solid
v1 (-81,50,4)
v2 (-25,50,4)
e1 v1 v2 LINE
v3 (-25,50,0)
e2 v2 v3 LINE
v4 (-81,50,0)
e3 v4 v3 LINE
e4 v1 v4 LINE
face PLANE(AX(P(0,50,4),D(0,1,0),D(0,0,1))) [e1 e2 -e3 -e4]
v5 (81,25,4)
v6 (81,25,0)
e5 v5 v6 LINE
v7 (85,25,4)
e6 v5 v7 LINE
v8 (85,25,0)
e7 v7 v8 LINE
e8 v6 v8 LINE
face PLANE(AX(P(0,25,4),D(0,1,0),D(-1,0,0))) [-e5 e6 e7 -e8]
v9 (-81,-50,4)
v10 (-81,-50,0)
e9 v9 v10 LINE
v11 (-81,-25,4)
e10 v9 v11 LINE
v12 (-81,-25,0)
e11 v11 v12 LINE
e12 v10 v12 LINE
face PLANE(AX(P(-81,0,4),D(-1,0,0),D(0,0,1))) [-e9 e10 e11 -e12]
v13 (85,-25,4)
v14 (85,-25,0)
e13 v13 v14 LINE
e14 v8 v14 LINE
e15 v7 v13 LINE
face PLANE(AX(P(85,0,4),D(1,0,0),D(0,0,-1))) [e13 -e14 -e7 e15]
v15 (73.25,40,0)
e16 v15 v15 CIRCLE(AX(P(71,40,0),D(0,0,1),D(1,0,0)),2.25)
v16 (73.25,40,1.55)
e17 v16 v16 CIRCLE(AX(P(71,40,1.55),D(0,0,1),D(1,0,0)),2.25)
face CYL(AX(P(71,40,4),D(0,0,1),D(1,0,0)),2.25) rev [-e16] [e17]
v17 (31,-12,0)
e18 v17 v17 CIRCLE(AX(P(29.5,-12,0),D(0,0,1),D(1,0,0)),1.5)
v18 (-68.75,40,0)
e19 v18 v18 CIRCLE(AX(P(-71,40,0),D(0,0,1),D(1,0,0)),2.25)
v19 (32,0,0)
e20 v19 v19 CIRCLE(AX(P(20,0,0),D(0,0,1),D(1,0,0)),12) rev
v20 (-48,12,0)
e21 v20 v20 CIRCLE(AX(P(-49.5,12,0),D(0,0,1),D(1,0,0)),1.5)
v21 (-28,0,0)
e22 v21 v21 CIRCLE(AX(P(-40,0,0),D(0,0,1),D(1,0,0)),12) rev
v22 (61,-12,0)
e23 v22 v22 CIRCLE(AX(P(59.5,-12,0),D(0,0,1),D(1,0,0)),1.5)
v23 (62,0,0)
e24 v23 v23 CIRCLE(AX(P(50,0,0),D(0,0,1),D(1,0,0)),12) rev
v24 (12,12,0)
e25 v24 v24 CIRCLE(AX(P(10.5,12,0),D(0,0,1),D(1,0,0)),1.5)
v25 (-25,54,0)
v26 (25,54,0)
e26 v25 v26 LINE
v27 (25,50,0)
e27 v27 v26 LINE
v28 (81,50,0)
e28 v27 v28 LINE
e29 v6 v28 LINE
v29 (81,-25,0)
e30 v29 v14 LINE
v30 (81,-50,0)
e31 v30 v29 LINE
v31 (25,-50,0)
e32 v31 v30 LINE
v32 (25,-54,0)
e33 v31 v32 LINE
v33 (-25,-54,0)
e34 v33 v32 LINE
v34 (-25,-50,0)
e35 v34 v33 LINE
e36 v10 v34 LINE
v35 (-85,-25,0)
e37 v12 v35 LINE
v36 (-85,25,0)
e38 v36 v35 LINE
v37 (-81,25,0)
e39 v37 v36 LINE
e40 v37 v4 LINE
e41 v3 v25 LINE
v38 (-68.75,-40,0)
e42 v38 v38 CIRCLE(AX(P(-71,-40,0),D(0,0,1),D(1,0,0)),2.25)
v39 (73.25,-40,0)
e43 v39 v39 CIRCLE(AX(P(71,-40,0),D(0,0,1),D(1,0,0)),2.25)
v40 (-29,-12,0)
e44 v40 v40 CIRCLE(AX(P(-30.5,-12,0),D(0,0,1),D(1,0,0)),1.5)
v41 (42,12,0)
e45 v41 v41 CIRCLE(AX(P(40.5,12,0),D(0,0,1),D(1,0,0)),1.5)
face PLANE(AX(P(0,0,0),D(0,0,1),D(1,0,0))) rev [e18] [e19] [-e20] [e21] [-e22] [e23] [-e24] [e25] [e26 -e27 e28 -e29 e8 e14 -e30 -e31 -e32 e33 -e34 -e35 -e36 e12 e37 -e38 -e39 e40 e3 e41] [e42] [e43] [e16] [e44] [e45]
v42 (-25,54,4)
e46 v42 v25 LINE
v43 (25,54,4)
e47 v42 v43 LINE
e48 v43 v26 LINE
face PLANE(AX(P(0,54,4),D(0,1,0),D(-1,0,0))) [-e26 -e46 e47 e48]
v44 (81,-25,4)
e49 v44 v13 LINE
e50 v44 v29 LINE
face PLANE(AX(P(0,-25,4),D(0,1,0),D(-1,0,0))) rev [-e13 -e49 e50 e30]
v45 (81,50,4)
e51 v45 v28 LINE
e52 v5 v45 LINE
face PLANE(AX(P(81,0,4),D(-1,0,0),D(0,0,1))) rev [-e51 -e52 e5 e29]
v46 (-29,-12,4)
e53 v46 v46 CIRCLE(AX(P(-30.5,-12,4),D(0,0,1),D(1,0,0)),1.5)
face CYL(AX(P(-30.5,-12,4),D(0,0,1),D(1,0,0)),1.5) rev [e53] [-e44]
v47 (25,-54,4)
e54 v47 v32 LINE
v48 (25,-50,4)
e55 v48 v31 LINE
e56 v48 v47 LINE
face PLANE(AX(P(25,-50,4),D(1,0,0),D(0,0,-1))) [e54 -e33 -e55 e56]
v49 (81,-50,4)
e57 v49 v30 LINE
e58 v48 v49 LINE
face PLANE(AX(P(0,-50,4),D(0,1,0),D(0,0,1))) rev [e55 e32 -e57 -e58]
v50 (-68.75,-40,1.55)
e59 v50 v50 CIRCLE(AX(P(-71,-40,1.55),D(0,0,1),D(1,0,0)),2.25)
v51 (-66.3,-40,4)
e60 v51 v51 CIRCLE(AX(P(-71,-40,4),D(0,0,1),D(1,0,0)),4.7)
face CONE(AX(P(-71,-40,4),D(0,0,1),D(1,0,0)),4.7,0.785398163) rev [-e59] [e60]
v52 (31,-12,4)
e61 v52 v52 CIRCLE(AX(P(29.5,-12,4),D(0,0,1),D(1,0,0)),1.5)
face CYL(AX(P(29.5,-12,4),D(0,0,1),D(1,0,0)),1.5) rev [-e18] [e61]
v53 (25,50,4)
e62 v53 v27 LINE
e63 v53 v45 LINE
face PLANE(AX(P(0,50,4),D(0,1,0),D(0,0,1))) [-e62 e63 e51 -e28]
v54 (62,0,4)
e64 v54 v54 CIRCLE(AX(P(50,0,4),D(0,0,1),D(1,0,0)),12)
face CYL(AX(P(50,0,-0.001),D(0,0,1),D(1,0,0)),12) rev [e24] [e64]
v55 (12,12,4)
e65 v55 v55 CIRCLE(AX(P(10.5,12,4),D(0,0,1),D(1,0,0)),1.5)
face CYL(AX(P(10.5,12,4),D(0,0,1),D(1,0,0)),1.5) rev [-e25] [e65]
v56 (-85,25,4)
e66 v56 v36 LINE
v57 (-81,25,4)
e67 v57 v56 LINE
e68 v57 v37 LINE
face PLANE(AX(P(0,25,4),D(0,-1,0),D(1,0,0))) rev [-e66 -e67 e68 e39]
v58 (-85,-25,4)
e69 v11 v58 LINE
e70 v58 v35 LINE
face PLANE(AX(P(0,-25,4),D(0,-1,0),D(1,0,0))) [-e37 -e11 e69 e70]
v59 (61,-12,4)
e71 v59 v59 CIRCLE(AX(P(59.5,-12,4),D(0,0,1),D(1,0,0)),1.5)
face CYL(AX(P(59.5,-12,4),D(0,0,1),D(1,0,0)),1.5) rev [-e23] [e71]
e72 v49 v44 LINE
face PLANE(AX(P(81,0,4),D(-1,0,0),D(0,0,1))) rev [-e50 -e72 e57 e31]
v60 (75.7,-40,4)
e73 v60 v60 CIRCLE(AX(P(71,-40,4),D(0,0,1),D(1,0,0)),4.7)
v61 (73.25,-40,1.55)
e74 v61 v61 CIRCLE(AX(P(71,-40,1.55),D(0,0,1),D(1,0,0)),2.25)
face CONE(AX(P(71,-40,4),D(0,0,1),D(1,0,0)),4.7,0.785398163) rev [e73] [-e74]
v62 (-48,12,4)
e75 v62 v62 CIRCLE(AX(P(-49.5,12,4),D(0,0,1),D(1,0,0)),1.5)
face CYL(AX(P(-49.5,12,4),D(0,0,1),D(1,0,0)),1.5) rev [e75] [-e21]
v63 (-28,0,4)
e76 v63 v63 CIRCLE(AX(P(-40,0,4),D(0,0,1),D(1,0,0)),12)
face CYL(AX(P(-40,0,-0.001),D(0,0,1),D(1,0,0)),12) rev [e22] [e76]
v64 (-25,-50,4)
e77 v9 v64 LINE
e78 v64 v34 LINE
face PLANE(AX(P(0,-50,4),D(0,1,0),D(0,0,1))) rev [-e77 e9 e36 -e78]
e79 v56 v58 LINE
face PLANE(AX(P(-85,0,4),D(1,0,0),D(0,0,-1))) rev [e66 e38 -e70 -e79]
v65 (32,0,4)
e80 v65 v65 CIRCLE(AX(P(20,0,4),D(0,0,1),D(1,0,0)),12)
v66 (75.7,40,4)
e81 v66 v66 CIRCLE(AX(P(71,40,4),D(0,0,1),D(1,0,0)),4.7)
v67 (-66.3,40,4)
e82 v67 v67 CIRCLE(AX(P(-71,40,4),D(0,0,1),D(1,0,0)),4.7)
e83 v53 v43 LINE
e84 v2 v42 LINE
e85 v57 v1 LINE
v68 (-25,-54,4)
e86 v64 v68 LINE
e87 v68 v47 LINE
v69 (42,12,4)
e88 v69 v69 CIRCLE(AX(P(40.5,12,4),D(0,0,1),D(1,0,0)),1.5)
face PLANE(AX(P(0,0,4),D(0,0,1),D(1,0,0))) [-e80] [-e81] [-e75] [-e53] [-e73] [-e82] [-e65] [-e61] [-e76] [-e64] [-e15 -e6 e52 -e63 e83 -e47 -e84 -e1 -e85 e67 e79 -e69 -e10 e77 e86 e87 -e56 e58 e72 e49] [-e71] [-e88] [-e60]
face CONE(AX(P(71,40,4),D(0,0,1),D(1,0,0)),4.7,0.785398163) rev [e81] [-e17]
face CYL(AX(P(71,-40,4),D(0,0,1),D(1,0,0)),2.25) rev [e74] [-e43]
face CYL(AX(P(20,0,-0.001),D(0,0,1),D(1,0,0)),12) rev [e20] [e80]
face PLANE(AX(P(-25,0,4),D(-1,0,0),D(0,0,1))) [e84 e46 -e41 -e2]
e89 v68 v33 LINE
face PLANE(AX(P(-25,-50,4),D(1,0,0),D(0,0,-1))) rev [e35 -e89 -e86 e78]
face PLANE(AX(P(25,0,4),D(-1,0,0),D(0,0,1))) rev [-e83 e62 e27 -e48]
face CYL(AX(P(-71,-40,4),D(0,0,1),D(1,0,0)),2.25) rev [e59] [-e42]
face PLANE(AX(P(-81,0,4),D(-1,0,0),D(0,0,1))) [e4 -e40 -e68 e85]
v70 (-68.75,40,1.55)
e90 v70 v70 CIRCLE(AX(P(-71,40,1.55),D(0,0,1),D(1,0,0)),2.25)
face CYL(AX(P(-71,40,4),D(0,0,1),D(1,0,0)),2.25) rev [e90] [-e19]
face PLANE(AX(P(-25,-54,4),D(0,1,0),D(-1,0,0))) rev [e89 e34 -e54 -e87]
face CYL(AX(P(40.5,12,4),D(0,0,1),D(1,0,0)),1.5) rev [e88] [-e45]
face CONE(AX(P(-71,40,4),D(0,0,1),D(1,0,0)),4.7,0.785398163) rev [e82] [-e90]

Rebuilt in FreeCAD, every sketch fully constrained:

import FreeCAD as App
import Part
import Sketcher

V = App.Vector
Q = App.Units.Quantity

doc = App.newDocument("Part")
body = doc.addObject("PartDesign::Body", "Body")

sketch1 = doc.addObject("Sketcher::SketchObject", "Sketch")
body.addObject(sketch1)
sketch1.AttachmentSupport = (doc.XY_Plane, [""])
sketch1.MapMode = "FlatFace"
sketch1.addGeometry(Part.LineSegment(V(-81, -25, 0), V(-81, -50, 0)), False)
sketch1.addGeometry(Part.LineSegment(V(-81, -50, 0), V(-25, -50, 0)), False)
sketch1.addGeometry(Part.LineSegment(V(-25, -50, 0), V(-25, -54, 0)), False)
sketch1.addGeometry(Part.LineSegment(V(-25, -54, 0), V(25, -54, 0)), False)
sketch1.addGeometry(Part.LineSegment(V(25, -54, 0), V(25, -50, 0)), False)
sketch1.addGeometry(Part.LineSegment(V(25, -50, 0), V(81, -50, 0)), False)
sketch1.addGeometry(Part.LineSegment(V(81, -50, 0), V(81, -25, 0)), False)
sketch1.addGeometry(Part.LineSegment(V(81, -25, 0), V(85, -25, 0)), False)
sketch1.addGeometry(Part.LineSegment(V(85, -25, 0), V(85, 25, 0)), False)
sketch1.addGeometry(Part.LineSegment(V(85, 25, 0), V(81, 25, 0)), False)
sketch1.addGeometry(Part.LineSegment(V(81, 25, 0), V(81, 50, 0)), False)
sketch1.addGeometry(Part.LineSegment(V(81, 50, 0), V(25, 50, 0)), False)
sketch1.addGeometry(Part.LineSegment(V(25, 50, 0), V(25, 54, 0)), False)
sketch1.addGeometry(Part.LineSegment(V(25, 54, 0), V(-25, 54, 0)), False)
sketch1.addGeometry(Part.LineSegment(V(-25, 54, 0), V(-25, 50, 0)), False)
sketch1.addGeometry(Part.LineSegment(V(-25, 50, 0), V(-81, 50, 0)), False)
sketch1.addGeometry(Part.LineSegment(V(-81, 50, 0), V(-81, 25, 0)), False)
sketch1.addGeometry(Part.LineSegment(V(-81, 25, 0), V(-85, 25, 0)), False)
sketch1.addGeometry(Part.LineSegment(V(-85, 25, 0), V(-85, -25, 0)), False)
sketch1.addGeometry(Part.LineSegment(V(-85, -25, 0), V(-81, -25, 0)), False)
sketch1.addConstraint(Sketcher.Constraint("Coincident", 0, 2, 1, 1))
sketch1.addConstraint(Sketcher.Constraint("Coincident", 1, 2, 2, 1))
sketch1.addConstraint(Sketcher.Constraint("Coincident", 2, 2, 3, 1))
sketch1.addConstraint(Sketcher.Constraint("Coincident", 3, 2, 4, 1))
sketch1.addConstraint(Sketcher.Constraint("Coincident", 4, 2, 5, 1))
sketch1.addConstraint(Sketcher.Constraint("Coincident", 5, 2, 6, 1))
sketch1.addConstraint(Sketcher.Constraint("Coincident", 6, 2, 7, 1))
sketch1.addConstraint(Sketcher.Constraint("Coincident", 7, 2, 8, 1))
sketch1.addConstraint(Sketcher.Constraint("Coincident", 8, 2, 9, 1))
sketch1.addConstraint(Sketcher.Constraint("Coincident", 9, 2, 10, 1))
sketch1.addConstraint(Sketcher.Constraint("Coincident", 10, 2, 11, 1))
sketch1.addConstraint(Sketcher.Constraint("Coincident", 11, 2, 12, 1))
sketch1.addConstraint(Sketcher.Constraint("Coincident", 12, 2, 13, 1))
sketch1.addConstraint(Sketcher.Constraint("Coincident", 13, 2, 14, 1))
sketch1.addConstraint(Sketcher.Constraint("Coincident", 14, 2, 15, 1))
sketch1.addConstraint(Sketcher.Constraint("Coincident", 15, 2, 16, 1))
sketch1.addConstraint(Sketcher.Constraint("Coincident", 16, 2, 17, 1))
sketch1.addConstraint(Sketcher.Constraint("Coincident", 17, 2, 18, 1))
sketch1.addConstraint(Sketcher.Constraint("Coincident", 18, 2, 19, 1))
sketch1.addConstraint(Sketcher.Constraint("Coincident", 19, 2, 0, 1))
sketch1.addConstraint(Sketcher.Constraint("Vertical", 0))
sketch1.addConstraint(Sketcher.Constraint("Horizontal", 1))
sketch1.addConstraint(Sketcher.Constraint("Vertical", 2))
sketch1.addConstraint(Sketcher.Constraint("Horizontal", 3))
sketch1.addConstraint(Sketcher.Constraint("Vertical", 4))
sketch1.addConstraint(Sketcher.Constraint("Horizontal", 5))
sketch1.addConstraint(Sketcher.Constraint("Vertical", 6))
sketch1.addConstraint(Sketcher.Constraint("Horizontal", 7))
sketch1.addConstraint(Sketcher.Constraint("Vertical", 8))
sketch1.addConstraint(Sketcher.Constraint("Horizontal", 9))
sketch1.addConstraint(Sketcher.Constraint("Vertical", 10))
sketch1.addConstraint(Sketcher.Constraint("Horizontal", 11))
sketch1.addConstraint(Sketcher.Constraint("Vertical", 12))
sketch1.addConstraint(Sketcher.Constraint("Horizontal", 13))
sketch1.addConstraint(Sketcher.Constraint("Vertical", 14))
sketch1.addConstraint(Sketcher.Constraint("Horizontal", 15))
sketch1.addConstraint(Sketcher.Constraint("Vertical", 16))
sketch1.addConstraint(Sketcher.Constraint("Horizontal", 17))
sketch1.addConstraint(Sketcher.Constraint("Vertical", 18))
sketch1.addConstraint(Sketcher.Constraint("Horizontal", 19))
sketch1.addConstraint(Sketcher.Constraint("Symmetric", 0, 2, 10, 2, -1, 1))
sketch1.addConstraint(Sketcher.Constraint("Symmetric", 2, 2, 12, 2, -1, 1))
sketch1.addConstraint(Sketcher.Constraint("Symmetric", 4, 2, 14, 2, -1, 1))
sketch1.addConstraint(Sketcher.Constraint("Symmetric", 6, 2, 16, 2, -1, 1))
sketch1.addConstraint(Sketcher.Constraint("Symmetric", 8, 2, 18, 2, -1, 1))
sketch1.addConstraint(Sketcher.Constraint("Symmetric", 1, 2, 4, 2, -2))
sketch1.addConstraint(Sketcher.Constraint("Symmetric", 9, 2, 16, 2, -2))
sketch1.addConstraint(Sketcher.Constraint("Equal", 19, 2))
sketch1.addConstraint(Sketcher.Constraint("Equal", 13, 8))
sketch1.addConstraint(Sketcher.Constraint("DistanceX", 1, 1, 1, 2, Q("56 mm")))
sketch1.addConstraint(Sketcher.Constraint("DistanceX", 3, 1, 3, 2, Q("50 mm")))
sketch1.addConstraint(Sketcher.Constraint("DistanceX", 7, 1, 7, 2, Q("4 mm")))
sketch1.addConstraint(Sketcher.Constraint("DistanceY", 0, 2, 0, 1, Q("25 mm")))
pad1 = doc.addObject("PartDesign::Pad", "Pad")
body.addObject(pad1)
pad1.Profile = sketch1
pad1.Length = 4

sketch2 = doc.addObject("Sketcher::SketchObject", "Sketch001")
body.addObject(sketch2)
sketch2.AttachmentSupport = (doc.XY_Plane, [""])
sketch2.MapMode = "FlatFace"
sketch2.AttachmentOffset = App.Placement(V(0, 0, 4), App.Rotation())
sketch2.addGeometry(Part.Circle(V(-40, 0, 0), V(0, 0, 1), 12), False)
sketch2.addConstraint(Sketcher.Constraint("PointOnObject", 0, 3, -1))
sketch2.addConstraint(Sketcher.Constraint("Diameter", 0, Q("24 mm")))
sketch2.addConstraint(Sketcher.Constraint("DistanceX", 0, 3, -1, 1, Q("40 mm")))
pocket1 = doc.addObject("PartDesign::Pocket", "Pocket")
body.addObject(pocket1)
pocket1.Profile = sketch2
pocket1.Type = "UpToFirst"

sketch3 = doc.addObject("Sketcher::SketchObject", "Sketch002")
body.addObject(sketch3)
sketch3.AttachmentSupport = (doc.XY_Plane, [""])
sketch3.MapMode = "FlatFace"
sketch3.AttachmentOffset = App.Placement(V(0, 0, 4), App.Rotation())
sketch3.addGeometry(Part.Circle(V(20, 0, 0), V(0, 0, 1), 12), False)
sketch3.addConstraint(Sketcher.Constraint("PointOnObject", 0, 3, -1))
sketch3.addConstraint(Sketcher.Constraint("Diameter", 0, Q("24 mm")))
sketch3.addConstraint(Sketcher.Constraint("DistanceX", -1, 1, 0, 3, Q("20 mm")))
pocket2 = doc.addObject("PartDesign::Pocket", "Pocket001")
body.addObject(pocket2)
pocket2.Profile = sketch3
pocket2.Type = "UpToFirst"

sketch4 = doc.addObject("Sketcher::SketchObject", "Sketch003")
body.addObject(sketch4)
sketch4.AttachmentSupport = (doc.XY_Plane, [""])
sketch4.MapMode = "FlatFace"
sketch4.AttachmentOffset = App.Placement(V(0, 0, 4), App.Rotation())
sketch4.addGeometry(Part.Circle(V(50, 0, 0), V(0, 0, 1), 12), False)
sketch4.addConstraint(Sketcher.Constraint("PointOnObject", 0, 3, -1))
sketch4.addConstraint(Sketcher.Constraint("Diameter", 0, Q("24 mm")))
sketch4.addConstraint(Sketcher.Constraint("DistanceX", -1, 1, 0, 3, Q("50 mm")))
pocket3 = doc.addObject("PartDesign::Pocket", "Pocket002")
body.addObject(pocket3)
pocket3.Profile = sketch4
pocket3.Type = "UpToFirst"

sketch5 = doc.addObject("Sketcher::SketchObject", "Sketch004")
body.addObject(sketch5)
sketch5.AttachmentSupport = (doc.YZ_Plane, [""])
sketch5.MapMode = "FlatFace"
sketch5.AttachmentOffset = App.Placement(V(0, 0, -71), App.Rotation())
sketch5.addGeometry(Part.LineSegment(V(40, 0, 0), V(40, 4, 0)), False)
sketch5.addGeometry(Part.LineSegment(V(40, 4, 0), V(35.3, 4, 0)), False)
sketch5.addGeometry(Part.LineSegment(V(35.3, 4, 0), V(37.75, 1.55, 0)), False)
sketch5.addGeometry(Part.LineSegment(V(37.75, 1.55, 0), V(37.75, 0, 0)), False)
sketch5.addGeometry(Part.LineSegment(V(37.75, 0, 0), V(40, 0, 0)), False)
sketch5.addGeometry(Part.LineSegment(V(40, 4, 0), V(40, 0, 0)), True)
sketch5.addConstraint(Sketcher.Constraint("Coincident", 0, 2, 1, 1))
sketch5.addConstraint(Sketcher.Constraint("Coincident", 1, 2, 2, 1))
sketch5.addConstraint(Sketcher.Constraint("Coincident", 2, 2, 3, 1))
sketch5.addConstraint(Sketcher.Constraint("Coincident", 3, 2, 4, 1))
sketch5.addConstraint(Sketcher.Constraint("Coincident", 4, 2, 0, 1))
sketch5.addConstraint(Sketcher.Constraint("Vertical", 0))
sketch5.addConstraint(Sketcher.Constraint("Horizontal", 1))
sketch5.addConstraint(Sketcher.Constraint("Vertical", 3))
sketch5.addConstraint(Sketcher.Constraint("Horizontal", 4))
sketch5.addConstraint(Sketcher.Constraint("Vertical", 5))
sketch5.addConstraint(Sketcher.Constraint("Coincident", 5, 1, 0, 2))
sketch5.addConstraint(Sketcher.Constraint("PointOnObject", 3, 2, -1))
sketch5.addConstraint(Sketcher.Constraint("PointOnObject", 5, 2, -1))
sketch5.addConstraint(Sketcher.Constraint("DistanceY", 0, 1, 0, 2, Q("4 mm")))
sketch5.addConstraint(Sketcher.Constraint("Angle", 2, Q("-45 deg")))
sketch5.addConstraint(Sketcher.Constraint("DistanceX", 1, 2, 1, 1, Q("4.7 mm")))
sketch5.addConstraint(Sketcher.Constraint("DistanceX", -1, 1, 0, 2, Q("40 mm")))
sketch5.addConstraint(Sketcher.Constraint("DistanceX", 4, 1, 4, 2, Q("2.25 mm")))
groove = doc.addObject("PartDesign::Groove", "Groove")
body.addObject(groove)
groove.Profile = sketch5
groove.ReferenceAxis = (sketch5, ["Axis0"])
groove.Angle = 360
doc.recompute()

linearpattern = doc.addObject("PartDesign::LinearPattern", "LinearPattern")
body.addObject(linearpattern)
linearpattern.Originals = [groove]
linearpattern.Direction = (doc.X_Axis, [""])
linearpattern.Mode = "offset"
linearpattern.Offset = 142
linearpattern.Occurrences = 2
body.Tip = linearpattern
doc.recompute()

datumline = doc.addObject("PartDesign::Line", "DatumLine")
body.addObject(datumline)
datumline.Placement = App.Placement(V(0, 0, 0), App.Rotation(V(0, 0, 1), V(0.871247628, -0.490843734, 0)))
linearpattern2 = doc.addObject("PartDesign::LinearPattern", "LinearPattern001")
body.addObject(linearpattern2)
linearpattern2.Originals = [groove]
linearpattern2.Direction = (datumline, [""])
linearpattern2.Mode = "offset"
linearpattern2.Offset = 162.984662
linearpattern2.Occurrences = 2
body.Tip = linearpattern2
doc.recompute()

linearpattern3 = doc.addObject("PartDesign::LinearPattern", "LinearPattern002")
body.addObject(linearpattern3)
linearpattern3.Originals = [groove]
linearpattern3.Direction = (doc.Y_Axis, [""])
linearpattern3.Mode = "offset"
linearpattern3.Offset = 80
linearpattern3.Occurrences = 2
linearpattern3.Reversed = True
body.Tip = linearpattern3

sketch6 = doc.addObject("Sketcher::SketchObject", "Sketch005")
body.addObject(sketch6)
sketch6.AttachmentSupport = (doc.XY_Plane, [""])
sketch6.MapMode = "FlatFace"
sketch6.AttachmentOffset = App.Placement(V(0, 0, 4), App.Rotation())
sketch6.addGeometry(Part.Circle(V(-49.5, 12, 0), V(0, 0, 1), 1.5), False)
sketch6.addGeometry(Part.Circle(V(-30.5, -12, 0), V(0, 0, 1), 1.5), False)
sketch6.addGeometry(Part.Circle(V(10.5, 12, 0), V(0, 0, 1), 1.5), False)
sketch6.addGeometry(Part.Circle(V(29.5, -12, 0), V(0, 0, 1), 1.5), False)
sketch6.addGeometry(Part.Circle(V(40.5, 12, 0), V(0, 0, 1), 1.5), False)
sketch6.addGeometry(Part.Circle(V(59.5, -12, 0), V(0, 0, 1), 1.5), False)
sketch6.addConstraint(Sketcher.Constraint("Equal", 0, 1))
sketch6.addConstraint(Sketcher.Constraint("Equal", 1, 2))
sketch6.addConstraint(Sketcher.Constraint("Equal", 2, 3))
sketch6.addConstraint(Sketcher.Constraint("Equal", 3, 4))
sketch6.addConstraint(Sketcher.Constraint("Equal", 4, 5))
sketch6.addConstraint(Sketcher.Constraint("Horizontal", 0, 3, 2, 3))
sketch6.addConstraint(Sketcher.Constraint("Horizontal", 1, 3, 3, 3))
sketch6.addConstraint(Sketcher.Constraint("Horizontal", 2, 3, 4, 3))
sketch6.addConstraint(Sketcher.Constraint("Horizontal", 3, 3, 5, 3))
sketch6.addConstraint(Sketcher.Constraint("Diameter", 0, Q("3 mm")))
sketch6.addConstraint(Sketcher.Constraint("DistanceY", -1, 1, 0, 3, Q("12 mm")))
sketch6.addConstraint(Sketcher.Constraint("DistanceY", 1, 3, -1, 1, Q("12 mm")))
sketch6.addConstraint(Sketcher.Constraint("DistanceX", 0, 3, 1, 3, Q("19 mm")))
sketch6.addConstraint(Sketcher.Constraint("DistanceX", 1, 3, 2, 3, Q("41 mm")))
sketch6.addConstraint(Sketcher.Constraint("DistanceX", 2, 3, 3, 3, Q("19 mm")))
sketch6.addConstraint(Sketcher.Constraint("DistanceX", 3, 3, 4, 3, Q("11 mm")))
sketch6.addConstraint(Sketcher.Constraint("DistanceX", 3, 3, 5, 3, Q("30 mm")))
sketch6.addConstraint(Sketcher.Constraint("DistanceX", 0, 3, -1, 1, Q("49.5 mm")))
doc.recompute()
hole = doc.addObject("PartDesign::Hole", "Hole")
body.addObject(hole)
hole.Profile = sketch6
hole.ThreadType = "None"
hole.Diameter = 3
hole.DepthType = "ThroughAll"

doc.recompute()
